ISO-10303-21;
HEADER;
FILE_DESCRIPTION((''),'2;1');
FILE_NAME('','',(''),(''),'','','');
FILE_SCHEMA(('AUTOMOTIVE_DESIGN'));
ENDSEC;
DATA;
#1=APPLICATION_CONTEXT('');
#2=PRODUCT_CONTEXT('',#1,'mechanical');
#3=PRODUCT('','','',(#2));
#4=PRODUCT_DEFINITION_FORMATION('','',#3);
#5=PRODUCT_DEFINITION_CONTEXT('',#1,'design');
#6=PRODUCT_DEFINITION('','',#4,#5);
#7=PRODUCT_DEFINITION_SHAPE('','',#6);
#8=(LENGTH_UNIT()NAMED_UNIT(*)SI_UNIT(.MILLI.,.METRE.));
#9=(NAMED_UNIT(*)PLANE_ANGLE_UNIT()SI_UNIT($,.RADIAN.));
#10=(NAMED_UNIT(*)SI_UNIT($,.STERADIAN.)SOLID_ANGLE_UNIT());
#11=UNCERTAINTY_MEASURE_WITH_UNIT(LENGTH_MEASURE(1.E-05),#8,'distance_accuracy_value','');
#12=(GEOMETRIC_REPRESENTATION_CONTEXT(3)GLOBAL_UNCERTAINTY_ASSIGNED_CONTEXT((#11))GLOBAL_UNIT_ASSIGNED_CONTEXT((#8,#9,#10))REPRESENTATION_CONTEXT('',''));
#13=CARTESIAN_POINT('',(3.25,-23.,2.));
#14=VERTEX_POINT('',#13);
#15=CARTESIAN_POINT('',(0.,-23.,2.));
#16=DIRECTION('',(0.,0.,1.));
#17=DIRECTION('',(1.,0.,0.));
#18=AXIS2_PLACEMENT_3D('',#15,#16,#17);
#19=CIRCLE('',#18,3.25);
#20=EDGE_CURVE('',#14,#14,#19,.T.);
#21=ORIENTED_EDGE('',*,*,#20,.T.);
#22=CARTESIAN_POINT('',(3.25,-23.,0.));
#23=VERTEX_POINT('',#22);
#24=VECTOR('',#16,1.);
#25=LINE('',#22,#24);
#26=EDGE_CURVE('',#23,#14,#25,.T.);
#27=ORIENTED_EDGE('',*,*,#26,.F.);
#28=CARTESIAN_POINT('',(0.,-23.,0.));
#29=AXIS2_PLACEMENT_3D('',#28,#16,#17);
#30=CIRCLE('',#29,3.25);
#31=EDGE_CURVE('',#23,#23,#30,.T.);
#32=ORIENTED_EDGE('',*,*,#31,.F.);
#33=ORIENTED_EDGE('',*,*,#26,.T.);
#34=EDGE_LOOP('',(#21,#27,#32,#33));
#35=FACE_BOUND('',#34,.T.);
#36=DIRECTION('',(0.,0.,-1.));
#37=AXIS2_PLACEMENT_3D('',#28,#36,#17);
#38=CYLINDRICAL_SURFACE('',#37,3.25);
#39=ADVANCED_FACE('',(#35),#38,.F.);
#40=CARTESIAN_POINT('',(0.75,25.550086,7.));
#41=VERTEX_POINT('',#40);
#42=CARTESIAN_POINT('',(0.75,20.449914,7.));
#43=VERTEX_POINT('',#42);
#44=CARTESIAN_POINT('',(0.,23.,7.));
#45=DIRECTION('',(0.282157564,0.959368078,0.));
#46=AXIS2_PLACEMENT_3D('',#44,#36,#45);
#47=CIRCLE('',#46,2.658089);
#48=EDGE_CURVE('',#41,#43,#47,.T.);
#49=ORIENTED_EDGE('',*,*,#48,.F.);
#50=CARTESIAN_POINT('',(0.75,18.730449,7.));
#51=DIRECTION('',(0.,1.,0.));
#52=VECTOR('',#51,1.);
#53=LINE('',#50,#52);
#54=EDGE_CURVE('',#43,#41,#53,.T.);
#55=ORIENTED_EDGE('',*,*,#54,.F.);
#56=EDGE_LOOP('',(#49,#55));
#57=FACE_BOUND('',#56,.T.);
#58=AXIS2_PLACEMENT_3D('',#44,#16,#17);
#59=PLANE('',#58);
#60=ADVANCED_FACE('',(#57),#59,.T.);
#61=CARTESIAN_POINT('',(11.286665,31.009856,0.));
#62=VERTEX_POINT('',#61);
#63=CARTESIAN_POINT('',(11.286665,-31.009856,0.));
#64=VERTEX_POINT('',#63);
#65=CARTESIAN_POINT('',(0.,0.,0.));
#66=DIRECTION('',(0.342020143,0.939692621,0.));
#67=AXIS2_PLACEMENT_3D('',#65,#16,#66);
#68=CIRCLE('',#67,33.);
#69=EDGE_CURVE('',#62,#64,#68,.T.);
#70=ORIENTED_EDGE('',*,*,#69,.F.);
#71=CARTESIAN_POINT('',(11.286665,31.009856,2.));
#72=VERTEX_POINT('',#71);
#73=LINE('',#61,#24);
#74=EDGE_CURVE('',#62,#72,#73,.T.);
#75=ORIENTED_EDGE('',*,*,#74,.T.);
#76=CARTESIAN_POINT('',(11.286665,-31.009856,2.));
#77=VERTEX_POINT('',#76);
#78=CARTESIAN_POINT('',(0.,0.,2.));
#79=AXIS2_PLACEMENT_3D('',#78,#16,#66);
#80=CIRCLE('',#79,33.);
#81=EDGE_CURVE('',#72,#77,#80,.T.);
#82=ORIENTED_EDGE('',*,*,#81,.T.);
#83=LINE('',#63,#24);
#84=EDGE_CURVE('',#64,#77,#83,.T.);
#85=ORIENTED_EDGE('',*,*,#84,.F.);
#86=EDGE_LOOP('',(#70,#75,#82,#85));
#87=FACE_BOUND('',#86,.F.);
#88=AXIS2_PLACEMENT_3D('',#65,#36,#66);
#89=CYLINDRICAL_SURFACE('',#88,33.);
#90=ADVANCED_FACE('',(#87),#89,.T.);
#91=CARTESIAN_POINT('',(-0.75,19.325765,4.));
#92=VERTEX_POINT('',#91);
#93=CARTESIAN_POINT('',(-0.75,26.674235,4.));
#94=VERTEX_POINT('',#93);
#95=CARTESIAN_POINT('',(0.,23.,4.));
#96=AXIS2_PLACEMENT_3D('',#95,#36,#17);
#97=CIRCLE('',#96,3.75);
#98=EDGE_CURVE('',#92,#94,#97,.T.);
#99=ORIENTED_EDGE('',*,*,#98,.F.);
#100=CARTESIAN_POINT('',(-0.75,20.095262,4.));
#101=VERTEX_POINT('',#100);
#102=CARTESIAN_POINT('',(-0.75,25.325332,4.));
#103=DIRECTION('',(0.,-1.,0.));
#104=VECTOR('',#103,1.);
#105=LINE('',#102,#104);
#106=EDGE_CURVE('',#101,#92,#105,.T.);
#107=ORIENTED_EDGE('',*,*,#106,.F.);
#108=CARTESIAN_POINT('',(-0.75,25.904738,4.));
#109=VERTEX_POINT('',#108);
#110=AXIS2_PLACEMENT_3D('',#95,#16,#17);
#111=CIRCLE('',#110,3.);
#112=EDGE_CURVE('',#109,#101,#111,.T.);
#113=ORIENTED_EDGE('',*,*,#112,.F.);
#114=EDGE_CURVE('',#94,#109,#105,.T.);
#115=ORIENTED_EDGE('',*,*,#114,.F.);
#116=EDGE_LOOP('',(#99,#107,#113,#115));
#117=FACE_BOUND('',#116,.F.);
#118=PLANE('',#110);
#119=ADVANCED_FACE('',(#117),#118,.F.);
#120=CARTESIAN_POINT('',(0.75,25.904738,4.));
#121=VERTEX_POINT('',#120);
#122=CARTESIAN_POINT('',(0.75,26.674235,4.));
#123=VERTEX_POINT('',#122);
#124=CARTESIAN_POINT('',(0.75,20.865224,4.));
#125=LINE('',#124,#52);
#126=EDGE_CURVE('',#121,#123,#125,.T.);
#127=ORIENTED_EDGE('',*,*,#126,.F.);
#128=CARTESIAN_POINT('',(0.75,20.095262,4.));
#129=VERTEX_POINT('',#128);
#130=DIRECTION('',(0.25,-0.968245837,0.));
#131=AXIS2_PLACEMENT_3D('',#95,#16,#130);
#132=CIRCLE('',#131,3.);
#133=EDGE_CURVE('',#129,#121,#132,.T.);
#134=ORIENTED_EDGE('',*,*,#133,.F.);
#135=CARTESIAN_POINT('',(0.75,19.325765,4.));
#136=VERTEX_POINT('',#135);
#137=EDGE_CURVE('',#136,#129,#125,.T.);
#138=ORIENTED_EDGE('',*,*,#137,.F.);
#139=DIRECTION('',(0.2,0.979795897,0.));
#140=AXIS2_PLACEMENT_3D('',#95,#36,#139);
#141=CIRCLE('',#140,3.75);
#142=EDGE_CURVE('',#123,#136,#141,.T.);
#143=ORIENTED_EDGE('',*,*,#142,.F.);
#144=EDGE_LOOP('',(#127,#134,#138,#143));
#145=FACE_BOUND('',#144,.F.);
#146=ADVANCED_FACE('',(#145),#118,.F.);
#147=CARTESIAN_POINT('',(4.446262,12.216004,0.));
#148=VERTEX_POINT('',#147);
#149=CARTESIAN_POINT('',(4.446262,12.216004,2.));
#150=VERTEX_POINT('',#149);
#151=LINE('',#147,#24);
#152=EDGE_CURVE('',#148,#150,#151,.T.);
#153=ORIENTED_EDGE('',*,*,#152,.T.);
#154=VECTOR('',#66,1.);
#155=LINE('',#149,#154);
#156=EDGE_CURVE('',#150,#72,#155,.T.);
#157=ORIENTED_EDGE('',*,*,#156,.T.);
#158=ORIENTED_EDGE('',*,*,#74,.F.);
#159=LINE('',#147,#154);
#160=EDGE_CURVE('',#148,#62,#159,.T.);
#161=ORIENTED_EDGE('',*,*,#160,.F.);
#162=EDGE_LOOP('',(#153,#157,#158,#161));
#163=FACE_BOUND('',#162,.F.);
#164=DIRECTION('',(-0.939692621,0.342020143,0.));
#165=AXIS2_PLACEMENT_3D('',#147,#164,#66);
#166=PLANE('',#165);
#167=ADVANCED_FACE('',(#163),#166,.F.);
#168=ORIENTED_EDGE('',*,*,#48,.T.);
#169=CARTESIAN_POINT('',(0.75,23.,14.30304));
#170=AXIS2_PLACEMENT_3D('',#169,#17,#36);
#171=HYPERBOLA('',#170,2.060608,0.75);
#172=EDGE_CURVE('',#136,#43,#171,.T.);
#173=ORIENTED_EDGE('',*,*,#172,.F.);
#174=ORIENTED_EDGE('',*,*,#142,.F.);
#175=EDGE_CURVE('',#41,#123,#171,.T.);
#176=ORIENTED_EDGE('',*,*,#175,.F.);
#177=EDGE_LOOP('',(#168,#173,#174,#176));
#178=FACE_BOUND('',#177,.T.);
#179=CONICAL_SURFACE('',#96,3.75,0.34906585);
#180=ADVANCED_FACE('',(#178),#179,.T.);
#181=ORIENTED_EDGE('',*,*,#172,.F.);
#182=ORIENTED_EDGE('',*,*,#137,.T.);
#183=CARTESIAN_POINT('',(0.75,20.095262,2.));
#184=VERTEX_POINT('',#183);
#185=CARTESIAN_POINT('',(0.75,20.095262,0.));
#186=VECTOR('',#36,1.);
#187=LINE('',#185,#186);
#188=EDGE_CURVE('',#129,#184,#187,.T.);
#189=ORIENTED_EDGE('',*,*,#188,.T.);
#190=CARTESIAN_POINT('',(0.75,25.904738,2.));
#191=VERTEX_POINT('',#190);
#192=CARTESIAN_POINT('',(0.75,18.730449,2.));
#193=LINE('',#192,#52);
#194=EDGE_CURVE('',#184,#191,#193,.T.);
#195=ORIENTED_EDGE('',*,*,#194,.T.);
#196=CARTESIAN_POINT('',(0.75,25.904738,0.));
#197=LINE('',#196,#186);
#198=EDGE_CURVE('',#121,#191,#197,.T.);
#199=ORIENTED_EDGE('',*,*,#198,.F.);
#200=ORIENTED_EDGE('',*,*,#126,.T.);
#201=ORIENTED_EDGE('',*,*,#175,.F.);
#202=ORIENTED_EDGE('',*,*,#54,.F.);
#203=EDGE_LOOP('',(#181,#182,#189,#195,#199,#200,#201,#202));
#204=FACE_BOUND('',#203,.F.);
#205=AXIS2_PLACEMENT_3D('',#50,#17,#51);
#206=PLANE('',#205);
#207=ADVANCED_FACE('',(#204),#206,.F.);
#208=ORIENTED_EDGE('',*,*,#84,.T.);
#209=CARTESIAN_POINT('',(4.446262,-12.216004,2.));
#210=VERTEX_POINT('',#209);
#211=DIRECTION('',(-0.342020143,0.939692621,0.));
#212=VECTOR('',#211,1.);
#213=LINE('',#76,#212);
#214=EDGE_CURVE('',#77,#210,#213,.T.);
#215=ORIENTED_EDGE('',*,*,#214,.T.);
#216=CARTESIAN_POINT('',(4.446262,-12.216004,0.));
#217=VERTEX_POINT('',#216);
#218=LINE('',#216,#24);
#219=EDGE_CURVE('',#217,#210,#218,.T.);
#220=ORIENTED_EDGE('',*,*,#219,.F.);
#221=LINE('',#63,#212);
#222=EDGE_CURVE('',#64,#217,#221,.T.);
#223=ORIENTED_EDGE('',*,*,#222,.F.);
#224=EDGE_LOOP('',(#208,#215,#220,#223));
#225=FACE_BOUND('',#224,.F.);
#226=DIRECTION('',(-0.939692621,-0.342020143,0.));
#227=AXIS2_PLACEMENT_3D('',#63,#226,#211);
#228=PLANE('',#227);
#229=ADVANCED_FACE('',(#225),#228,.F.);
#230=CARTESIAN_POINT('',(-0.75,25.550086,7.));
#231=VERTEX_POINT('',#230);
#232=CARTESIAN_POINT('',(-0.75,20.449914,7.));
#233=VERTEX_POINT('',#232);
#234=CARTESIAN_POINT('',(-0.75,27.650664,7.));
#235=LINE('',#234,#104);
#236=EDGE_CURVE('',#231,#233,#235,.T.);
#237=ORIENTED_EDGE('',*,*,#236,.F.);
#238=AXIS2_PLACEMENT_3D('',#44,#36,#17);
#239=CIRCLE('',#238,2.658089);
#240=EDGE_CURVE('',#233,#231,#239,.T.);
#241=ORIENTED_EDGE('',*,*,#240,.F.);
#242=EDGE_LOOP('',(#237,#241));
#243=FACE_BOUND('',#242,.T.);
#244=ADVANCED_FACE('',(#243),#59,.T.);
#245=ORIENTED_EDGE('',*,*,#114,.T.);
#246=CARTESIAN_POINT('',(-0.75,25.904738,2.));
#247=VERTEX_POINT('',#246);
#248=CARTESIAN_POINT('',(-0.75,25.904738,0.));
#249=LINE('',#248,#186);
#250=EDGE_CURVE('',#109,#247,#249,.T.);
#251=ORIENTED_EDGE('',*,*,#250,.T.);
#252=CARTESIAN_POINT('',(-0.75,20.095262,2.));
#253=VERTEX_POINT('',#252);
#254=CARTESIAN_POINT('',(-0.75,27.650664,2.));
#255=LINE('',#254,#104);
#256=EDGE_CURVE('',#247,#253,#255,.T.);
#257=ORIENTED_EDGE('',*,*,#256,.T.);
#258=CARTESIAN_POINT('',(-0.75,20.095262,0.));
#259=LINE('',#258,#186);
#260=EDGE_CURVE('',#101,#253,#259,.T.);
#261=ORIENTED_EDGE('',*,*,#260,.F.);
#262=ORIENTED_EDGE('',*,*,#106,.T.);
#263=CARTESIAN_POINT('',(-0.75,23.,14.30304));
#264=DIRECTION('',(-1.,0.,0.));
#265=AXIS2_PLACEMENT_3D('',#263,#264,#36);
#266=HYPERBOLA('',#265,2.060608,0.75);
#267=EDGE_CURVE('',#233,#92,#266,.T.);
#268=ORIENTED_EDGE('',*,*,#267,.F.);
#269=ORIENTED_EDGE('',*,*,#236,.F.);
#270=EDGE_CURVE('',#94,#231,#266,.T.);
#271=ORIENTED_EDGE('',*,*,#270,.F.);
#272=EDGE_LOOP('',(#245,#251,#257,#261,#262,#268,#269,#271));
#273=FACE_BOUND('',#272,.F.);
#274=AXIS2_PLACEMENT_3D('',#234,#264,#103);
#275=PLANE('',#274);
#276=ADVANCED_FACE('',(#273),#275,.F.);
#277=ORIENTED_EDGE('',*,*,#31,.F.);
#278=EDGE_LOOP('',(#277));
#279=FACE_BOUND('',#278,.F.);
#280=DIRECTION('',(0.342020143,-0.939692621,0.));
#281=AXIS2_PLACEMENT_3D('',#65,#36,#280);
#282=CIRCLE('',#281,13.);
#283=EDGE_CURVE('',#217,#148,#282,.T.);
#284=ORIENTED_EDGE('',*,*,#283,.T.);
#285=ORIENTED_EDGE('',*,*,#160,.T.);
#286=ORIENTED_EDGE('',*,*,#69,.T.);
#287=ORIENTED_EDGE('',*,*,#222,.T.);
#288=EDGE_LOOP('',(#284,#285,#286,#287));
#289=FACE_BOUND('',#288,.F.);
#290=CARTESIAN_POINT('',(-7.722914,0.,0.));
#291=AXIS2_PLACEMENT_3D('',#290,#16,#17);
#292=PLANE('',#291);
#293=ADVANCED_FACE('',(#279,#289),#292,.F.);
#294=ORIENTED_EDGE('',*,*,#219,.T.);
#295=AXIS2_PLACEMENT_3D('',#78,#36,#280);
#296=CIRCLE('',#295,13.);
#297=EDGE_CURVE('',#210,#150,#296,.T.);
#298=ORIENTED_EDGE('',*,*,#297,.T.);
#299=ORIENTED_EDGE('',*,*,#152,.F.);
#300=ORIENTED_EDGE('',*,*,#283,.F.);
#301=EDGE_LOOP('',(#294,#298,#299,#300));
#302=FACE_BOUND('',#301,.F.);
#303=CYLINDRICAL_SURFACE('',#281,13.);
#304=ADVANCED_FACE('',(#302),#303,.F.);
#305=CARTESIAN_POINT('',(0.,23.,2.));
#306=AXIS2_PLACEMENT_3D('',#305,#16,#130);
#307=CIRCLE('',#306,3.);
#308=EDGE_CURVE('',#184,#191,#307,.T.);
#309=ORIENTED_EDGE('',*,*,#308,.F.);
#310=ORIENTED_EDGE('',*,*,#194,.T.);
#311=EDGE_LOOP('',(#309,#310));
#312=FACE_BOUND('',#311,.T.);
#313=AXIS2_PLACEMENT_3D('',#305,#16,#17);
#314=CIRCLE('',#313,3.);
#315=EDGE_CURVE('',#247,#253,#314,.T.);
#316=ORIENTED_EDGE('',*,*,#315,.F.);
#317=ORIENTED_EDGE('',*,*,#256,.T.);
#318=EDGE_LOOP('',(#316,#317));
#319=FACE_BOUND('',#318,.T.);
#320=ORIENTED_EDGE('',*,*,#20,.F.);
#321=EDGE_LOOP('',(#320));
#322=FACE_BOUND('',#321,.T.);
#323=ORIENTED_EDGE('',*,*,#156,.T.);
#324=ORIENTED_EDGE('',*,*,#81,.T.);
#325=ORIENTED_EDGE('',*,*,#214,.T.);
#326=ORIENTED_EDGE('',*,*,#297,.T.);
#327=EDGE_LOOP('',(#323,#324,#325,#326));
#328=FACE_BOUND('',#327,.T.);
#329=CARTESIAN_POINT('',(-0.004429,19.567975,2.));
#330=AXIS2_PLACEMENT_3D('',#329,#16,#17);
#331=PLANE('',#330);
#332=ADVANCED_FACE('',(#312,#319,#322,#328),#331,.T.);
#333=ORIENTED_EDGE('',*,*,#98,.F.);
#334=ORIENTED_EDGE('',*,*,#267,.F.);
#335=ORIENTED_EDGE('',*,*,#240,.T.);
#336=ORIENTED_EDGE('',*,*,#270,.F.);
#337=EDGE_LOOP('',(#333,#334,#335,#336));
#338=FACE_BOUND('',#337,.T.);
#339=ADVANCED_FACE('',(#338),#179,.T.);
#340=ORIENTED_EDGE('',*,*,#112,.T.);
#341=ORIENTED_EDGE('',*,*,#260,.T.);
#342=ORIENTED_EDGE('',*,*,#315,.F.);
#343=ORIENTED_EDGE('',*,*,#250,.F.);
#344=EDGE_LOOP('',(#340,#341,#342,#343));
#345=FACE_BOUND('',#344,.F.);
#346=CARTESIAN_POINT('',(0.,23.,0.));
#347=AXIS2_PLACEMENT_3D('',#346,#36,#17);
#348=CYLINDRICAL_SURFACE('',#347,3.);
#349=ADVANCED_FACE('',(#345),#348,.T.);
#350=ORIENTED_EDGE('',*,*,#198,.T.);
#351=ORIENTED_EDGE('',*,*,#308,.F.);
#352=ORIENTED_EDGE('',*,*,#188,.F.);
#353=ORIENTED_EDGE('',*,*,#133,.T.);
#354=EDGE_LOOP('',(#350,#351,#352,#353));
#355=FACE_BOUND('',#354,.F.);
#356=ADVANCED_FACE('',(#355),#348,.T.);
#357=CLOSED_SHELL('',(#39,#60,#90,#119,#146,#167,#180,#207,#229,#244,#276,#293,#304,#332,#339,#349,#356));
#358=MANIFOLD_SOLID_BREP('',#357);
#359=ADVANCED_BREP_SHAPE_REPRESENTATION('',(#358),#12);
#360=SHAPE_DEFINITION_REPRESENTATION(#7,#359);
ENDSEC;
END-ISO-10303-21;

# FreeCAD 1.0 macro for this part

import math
import FreeCAD as App
import Part
import Sketcher
Q = App.Units.Quantity


def add_polygon(sketch, points):
    """Adds a closed chain of lines whose ends are joined by coincident constraints."""
    first, n = sketch.GeometryCount, len(points)
    for a, b in zip(points, points[1:] + points[:1]):
        sketch.addGeometry(Part.LineSegment(App.Vector(*a, 0), App.Vector(*b, 0)), False)
    for i in range(n):
        sketch.addConstraint(Sketcher.Constraint("Coincident", first + i, 2, first + (i + 1) % n, 1))

doc = App.newDocument("Part")
params = doc.addObject("Spreadsheet::Sheet", "Params")
for row, (alias, value) in enumerate([
    ("sketch1_diameter", "6 mm"),
    ("sketch1_radius", "13 mm"),
    ("sketch1_radius2", "33 mm"),
    ("sketch1_diameter2", "6.5 mm"),
    ("pad1_length", "2 mm"),
    ("sketch2_diameter", "6 mm"),
    ("pad2_length", "4 mm"),
    ("sketch3_diameter", "7.5 mm"),
    ("pad3_length", "3 mm"),
    ("pad3_taper", "-20 deg"),
    ("pocket1_length", "5 mm"),
], start=1):
    params.set(f"A{row}", alias)
    params.set(f"B{row}", "=" + value)
    params.setAlias(f"B{row}", alias)

body = doc.addObject("PartDesign::Body", "Body")

sketch1 = doc.addObject("Sketcher::SketchObject", "Sketch")
body.addObject(sketch1)
sketch1.AttachmentSupport = (doc.XY_Plane, [""])
sketch1.MapMode = "FlatFace"
sketch1.addGeometry([
    Part.ArcOfCircle(Part.Circle(App.Vector(0, 0, 0), App.Vector(0, 0, 1), 13), math.radians(70), math.radians(290)),
    Part.LineSegment(App.Vector(4.4, 12.2, 0), App.Vector(11.3, 31, 0)),
    Part.ArcOfCircle(Part.Circle(App.Vector(0, 0, 0), App.Vector(0, 0, 1), 33), math.radians(70), math.radians(290)),
    Part.LineSegment(App.Vector(11.3, -31, 0), App.Vector(4.4, -12.2, 0)),
    Part.Circle(App.Vector(0, -23, 0), App.Vector(0, 0, 1), 3.2),
    Part.Circle(App.Vector(0, 23, 0), App.Vector(0, 0, 1), 3),
], False)
sketch1.addConstraint([
    Sketcher.Constraint("Coincident", 0, 1, 1, 1),
    Sketcher.Constraint("Coincident", 1, 2, 2, 1),
    Sketcher.Constraint("Coincident", 2, 2, 3, 1),
    Sketcher.Constraint("Coincident", 3, 2, 0, 2),
    Sketcher.Constraint("Coincident", 0, 3, -1, 1),
    Sketcher.Constraint("Coincident", 2, 3, -1, 1),
    Sketcher.Constraint("Symmetric", 4, 3, 5, 3, -1, 1),
    Sketcher.Constraint("PointOnObject", 4, 3, -2),
    Sketcher.Constraint("Vertical", 1, 2, 2, 2),
    Sketcher.Constraint("Vertical", 0, 1, 3, 2),
    Sketcher.Constraint("Diameter", 5, Q("6 mm")),
    Sketcher.Constraint("Radius", 0, Q("13 mm")),
    Sketcher.Constraint("Radius", 2, Q("33 mm")),
    Sketcher.Constraint("Diameter", 4, Q("6.5 mm")),
    Sketcher.Constraint("Angle", 1, Q("70 deg")),
    Sketcher.Constraint("DistanceY", 4, 3, -1, 1, Q("23 mm")),
    Sketcher.Constraint("DistanceX", -1, 1, 0, 1, Q("4.446262 mm")),
])
sketch1.setExpression("Constraints[10]", "Params.sketch1_diameter")
sketch1.setExpression("Constraints[11]", "Params.sketch1_radius")
sketch1.setExpression("Constraints[12]", "Params.sketch1_radius2")
sketch1.setExpression("Constraints[13]", "Params.sketch1_diameter2")
pad1 = doc.addObject("PartDesign::Pad", "Pad")
body.addObject(pad1)
pad1.Profile = sketch1
pad1.setExpression("Length", "Params.pad1_length")

sketch2 = doc.addObject("Sketcher::SketchObject", "Sketch001")
body.addObject(sketch2)
sketch2.AttachmentSupport = (doc.XY_Plane, [""])
sketch2.MapMode = "FlatFace"
sketch2.addGeometry(Part.Circle(App.Vector(0, 23, 0), App.Vector(0, 0, 1), 3), False)
sketch2.addConstraint([
    Sketcher.Constraint("PointOnObject", 0, 3, -2),
    Sketcher.Constraint("Diameter", 0, Q("6 mm")),
    Sketcher.Constraint("DistanceY", -1, 1, 0, 3, Q("23 mm")),
])
sketch2.setExpression("Constraints[1]", "Params.sketch2_diameter")
pad2 = doc.addObject("PartDesign::Pad", "Pad001")
body.addObject(pad2)
pad2.Profile = sketch2
pad2.setExpression("Length", "Params.pad2_length")

sketch3 = doc.addObject("Sketcher::SketchObject", "Sketch002")
body.addObject(sketch3)
sketch3.AttachmentSupport = (doc.XY_Plane, [""])
sketch3.MapMode = "FlatFace"
sketch3.AttachmentOffset = App.Placement(App.Vector(0, 0, 4), App.Rotation())
sketch3.addGeometry(Part.Circle(App.Vector(0, 23, 0), App.Vector(0, 0, 1), 3.8), False)
sketch3.addConstraint([
    Sketcher.Constraint("PointOnObject", 0, 3, -2),
    Sketcher.Constraint("Diameter", 0, Q("7.5 mm")),
    Sketcher.Constraint("DistanceY", -1, 1, 0, 3, Q("23 mm")),
])
sketch3.setExpression("Constraints[1]", "Params.sketch3_diameter")
pad3 = doc.addObject("PartDesign::Pad", "Pad002")
body.addObject(pad3)
pad3.Profile = sketch3
pad3.setExpression("Length", "Params.pad3_length")
pad3.setExpression("TaperAngle", "Params.pad3_taper")

sketch4 = doc.addObject("Sketcher::SketchObject", "Sketch003")
body.addObject(sketch4)
sketch4.AttachmentSupport = (doc.XY_Plane, [""])
sketch4.MapMode = "FlatFace"
sketch4.AttachmentOffset = App.Placement(App.Vector(0, 0, 7), App.Rotation())
add_polygon(sketch4, [(-0.75, 18.692084), (0.75, 18.730449), (0.75, 27.689029), (-0.75, 27.650664)])
sketch4.addConstraint([
    Sketcher.Constraint("Vertical", 1),
    Sketcher.Constraint("Vertical", 3),
    Sketcher.Constraint("Parallel", 0, 2),
    Sketcher.Constraint("DistanceX", 2, 2, 1, 2, Q("1.5 mm")),
    Sketcher.Constraint("DistanceX", -1, 1, 0, 2, Q("0.75 mm")),
    Sketcher.Constraint("DistanceY", 1, 1, 1, 2, Q("8.95858 mm")),
    Sketcher.Constraint("Distance", 0, Q("1.500491 mm")),
    Sketcher.Constraint("DistanceY", -1, 1, 0, 2, Q("18.730449 mm")),
])
pocket1 = doc.addObject("PartDesign::Pocket", "Pocket")
body.addObject(pocket1)
pocket1.Profile = sketch4
pocket1.setExpression("Length", "Params.pocket1_length")

doc.recompute()
